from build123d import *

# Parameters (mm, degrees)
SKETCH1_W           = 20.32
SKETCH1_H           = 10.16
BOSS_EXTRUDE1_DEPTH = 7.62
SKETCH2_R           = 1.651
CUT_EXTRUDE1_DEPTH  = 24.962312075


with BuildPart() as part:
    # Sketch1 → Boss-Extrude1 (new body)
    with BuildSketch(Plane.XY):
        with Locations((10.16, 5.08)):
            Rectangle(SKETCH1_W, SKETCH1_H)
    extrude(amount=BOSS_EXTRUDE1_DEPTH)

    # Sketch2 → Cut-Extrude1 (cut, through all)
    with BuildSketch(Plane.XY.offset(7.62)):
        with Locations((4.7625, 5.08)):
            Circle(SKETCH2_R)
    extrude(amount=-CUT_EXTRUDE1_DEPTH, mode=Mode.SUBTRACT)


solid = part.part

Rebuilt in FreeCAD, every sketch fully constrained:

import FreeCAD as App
import Part
import Sketcher

V = App.Vector
Q = App.Units.Quantity


def add_polygon(sketch, points):
    """Adds a closed chain of lines whose ends are joined by coincident constraints."""
    first, n = sketch.GeometryCount, len(points)
    for a, b in zip(points, points[1:] + points[:1]):
        sketch.addGeometry(Part.LineSegment(App.Vector(*a, 0), App.Vector(*b, 0)), False)
    for i in range(n):
        sketch.addConstraint(Sketcher.Constraint("Coincident", first + i, 2, first + (i + 1) % n, 1))

doc = App.newDocument("Part")
body = doc.addObject("PartDesign::Body", "Body")

sketch1 = body.newObject("Sketcher::SketchObject", "Sketch")
sketch1.AttachmentSupport = (doc.getObject("XY_Plane"), [""])
sketch1.MapMode = "FlatFace"
add_polygon(sketch1, [(0, 10.16), (0, 0), (20.32, 0), (20.32, 10.16)])
sketch1.addConstraint(Sketcher.Constraint("Vertical", 0))
sketch1.addConstraint(Sketcher.Constraint("Horizontal", 1))
sketch1.addConstraint(Sketcher.Constraint("Vertical", 2))
sketch1.addConstraint(Sketcher.Constraint("Horizontal", 3))
sketch1.addConstraint(Sketcher.Constraint("Coincident", 0, 2, -1, 1))
sketch1.addConstraint(Sketcher.Constraint("DistanceX", 1, 1, 1, 2, Q("0.8 in")))
sketch1.addConstraint(Sketcher.Constraint("DistanceY", 0, 2, 0, 1, Q("0.4 in")))
pad1 = body.newObject("PartDesign::Pad", "Pad")
pad1.Profile = sketch1
pad1.Length = Q("0.3 in")

sketch2 = body.newObject("Sketcher::SketchObject", "Sketch001")
sketch2.AttachmentSupport = (doc.getObject("XY_Plane"), [""])
sketch2.MapMode = "FlatFace"
sketch2.AttachmentOffset = App.Placement(V(0, 0, 0.3 * 25.4), App.Rotation())
sketch2.addGeometry(Part.Circle(V(4.7625, 5.08, 0), V(0, 0, 1), 1.651), False)
sketch2.addConstraint(Sketcher.Constraint("Diameter", 0, Q("0.13 in")))
sketch2.addConstraint(Sketcher.Constraint("DistanceY", -1, 1, 0, 3, Q("0.2 in")))
sketch2.addConstraint(Sketcher.Constraint("DistanceX", -1, 1, 0, 3, Q("0.1875 in")))
pocket1 = body.newObject("PartDesign::Pocket", "Pocket")
pocket1.Profile = sketch2
pocket1.Type = "ThroughAll"

doc.recompute()
